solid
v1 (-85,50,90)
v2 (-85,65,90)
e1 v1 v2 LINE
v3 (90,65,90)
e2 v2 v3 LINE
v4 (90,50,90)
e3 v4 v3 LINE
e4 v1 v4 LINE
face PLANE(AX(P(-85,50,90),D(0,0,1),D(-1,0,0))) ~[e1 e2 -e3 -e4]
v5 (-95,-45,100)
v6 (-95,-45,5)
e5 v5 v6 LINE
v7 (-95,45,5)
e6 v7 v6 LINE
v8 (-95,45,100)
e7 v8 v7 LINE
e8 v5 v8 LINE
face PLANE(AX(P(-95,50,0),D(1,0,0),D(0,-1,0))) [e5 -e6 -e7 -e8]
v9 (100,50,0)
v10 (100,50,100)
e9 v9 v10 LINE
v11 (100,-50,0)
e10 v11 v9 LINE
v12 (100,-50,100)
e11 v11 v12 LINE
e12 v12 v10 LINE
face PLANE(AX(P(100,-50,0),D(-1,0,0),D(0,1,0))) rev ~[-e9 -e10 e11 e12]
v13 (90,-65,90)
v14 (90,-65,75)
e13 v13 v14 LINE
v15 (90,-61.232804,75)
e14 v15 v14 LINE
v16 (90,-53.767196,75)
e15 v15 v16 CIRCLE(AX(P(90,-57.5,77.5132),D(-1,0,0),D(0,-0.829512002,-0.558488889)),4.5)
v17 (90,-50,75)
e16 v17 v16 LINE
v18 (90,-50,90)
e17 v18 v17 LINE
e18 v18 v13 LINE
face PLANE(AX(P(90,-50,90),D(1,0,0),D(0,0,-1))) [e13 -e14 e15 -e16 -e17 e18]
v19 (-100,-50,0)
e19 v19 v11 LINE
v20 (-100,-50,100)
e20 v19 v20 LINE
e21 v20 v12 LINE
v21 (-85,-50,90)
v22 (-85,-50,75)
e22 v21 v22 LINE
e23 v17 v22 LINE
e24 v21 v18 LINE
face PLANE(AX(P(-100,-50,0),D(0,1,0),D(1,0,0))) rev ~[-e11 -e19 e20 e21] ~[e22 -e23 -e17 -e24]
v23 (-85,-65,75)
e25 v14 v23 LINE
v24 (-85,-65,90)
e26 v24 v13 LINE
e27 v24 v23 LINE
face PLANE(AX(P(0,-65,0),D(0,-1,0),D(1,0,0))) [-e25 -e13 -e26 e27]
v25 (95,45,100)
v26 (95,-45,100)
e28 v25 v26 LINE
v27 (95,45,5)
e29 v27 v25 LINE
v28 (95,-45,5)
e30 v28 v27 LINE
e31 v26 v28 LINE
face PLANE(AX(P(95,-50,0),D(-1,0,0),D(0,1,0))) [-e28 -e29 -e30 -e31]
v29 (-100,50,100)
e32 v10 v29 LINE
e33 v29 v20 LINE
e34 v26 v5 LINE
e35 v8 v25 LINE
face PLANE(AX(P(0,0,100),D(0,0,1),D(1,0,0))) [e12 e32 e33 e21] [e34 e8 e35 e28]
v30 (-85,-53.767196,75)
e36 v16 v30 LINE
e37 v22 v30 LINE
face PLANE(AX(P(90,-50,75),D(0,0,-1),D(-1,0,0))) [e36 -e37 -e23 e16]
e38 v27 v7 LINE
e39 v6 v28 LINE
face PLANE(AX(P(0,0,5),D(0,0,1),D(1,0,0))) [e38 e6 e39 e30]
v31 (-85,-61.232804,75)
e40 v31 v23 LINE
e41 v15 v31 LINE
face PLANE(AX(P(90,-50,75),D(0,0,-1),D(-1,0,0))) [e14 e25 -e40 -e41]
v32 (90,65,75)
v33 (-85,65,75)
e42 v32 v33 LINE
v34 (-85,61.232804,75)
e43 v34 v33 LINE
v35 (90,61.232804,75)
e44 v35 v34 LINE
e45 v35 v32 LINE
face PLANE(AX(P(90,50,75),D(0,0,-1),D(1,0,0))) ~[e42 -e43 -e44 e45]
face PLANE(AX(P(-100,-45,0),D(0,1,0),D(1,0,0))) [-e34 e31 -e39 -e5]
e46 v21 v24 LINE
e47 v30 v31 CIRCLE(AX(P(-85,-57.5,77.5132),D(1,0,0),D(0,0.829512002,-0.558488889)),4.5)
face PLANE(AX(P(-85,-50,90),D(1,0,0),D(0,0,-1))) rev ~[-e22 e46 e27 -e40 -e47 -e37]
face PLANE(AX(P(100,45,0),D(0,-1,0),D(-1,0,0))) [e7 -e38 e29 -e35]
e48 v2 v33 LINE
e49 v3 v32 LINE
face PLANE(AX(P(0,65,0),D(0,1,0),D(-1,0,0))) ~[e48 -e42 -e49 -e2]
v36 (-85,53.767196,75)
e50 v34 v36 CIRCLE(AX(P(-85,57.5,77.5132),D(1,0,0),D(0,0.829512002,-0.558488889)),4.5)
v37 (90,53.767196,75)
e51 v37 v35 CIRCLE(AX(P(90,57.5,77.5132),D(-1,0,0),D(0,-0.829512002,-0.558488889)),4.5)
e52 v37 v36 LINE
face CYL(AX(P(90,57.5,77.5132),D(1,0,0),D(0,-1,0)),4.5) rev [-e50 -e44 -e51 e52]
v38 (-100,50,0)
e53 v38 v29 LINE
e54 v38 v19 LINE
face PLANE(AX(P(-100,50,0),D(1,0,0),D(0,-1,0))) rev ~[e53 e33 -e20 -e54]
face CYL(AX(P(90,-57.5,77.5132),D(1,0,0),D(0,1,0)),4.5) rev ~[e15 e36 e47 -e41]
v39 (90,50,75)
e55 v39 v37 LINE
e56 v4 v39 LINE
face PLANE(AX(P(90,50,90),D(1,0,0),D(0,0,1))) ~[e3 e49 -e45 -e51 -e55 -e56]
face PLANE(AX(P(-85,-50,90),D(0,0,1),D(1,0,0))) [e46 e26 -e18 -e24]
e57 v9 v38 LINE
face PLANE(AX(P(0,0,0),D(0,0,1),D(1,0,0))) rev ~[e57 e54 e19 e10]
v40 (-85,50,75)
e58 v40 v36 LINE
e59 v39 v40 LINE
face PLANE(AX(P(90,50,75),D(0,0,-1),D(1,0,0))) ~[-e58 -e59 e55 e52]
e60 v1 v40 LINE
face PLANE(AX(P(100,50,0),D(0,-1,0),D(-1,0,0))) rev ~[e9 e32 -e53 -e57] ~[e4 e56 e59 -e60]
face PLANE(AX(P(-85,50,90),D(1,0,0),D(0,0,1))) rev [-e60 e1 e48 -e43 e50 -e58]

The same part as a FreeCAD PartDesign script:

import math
import FreeCAD as App
import Part
import Sketcher


def faces_at(feature, points):
    """Names of the faces that lie closest to the given points."""
    faces = feature.Shape.Faces
    near = lambda p: min(range(len(faces)), key=lambda i: faces[i].distToShape(Part.Vertex(*p))[0])
    return sorted({f"Face{near(p) + 1}" for p in points})

doc = App.newDocument("Part")
body = doc.addObject("PartDesign::Body", "Body")

# Sketch on XY plane
sketch1 = body.newObject("Sketcher::SketchObject", "Sketch")
sketch1.AttachmentSupport = (doc.getObject("XY_Plane"), [""])
sketch1.MapMode = "FlatFace"
sketch1.addGeometry([
    Part.LineSegment(App.Vector(100, -50, 0), App.Vector(100, 50, 0)),
    Part.LineSegment(App.Vector(100, 50, 0), App.Vector(-100, 50, 0)),
    Part.LineSegment(App.Vector(-100, 50, 0), App.Vector(-100, -50, 0)),
    Part.LineSegment(App.Vector(-100, -50, 0), App.Vector(100, -50, 0)),
], False)
sketch1.addConstraint([
    Sketcher.Constraint("Coincident", 0, 2, 1, 1),
    Sketcher.Constraint("Coincident", 1, 2, 2, 1),
    Sketcher.Constraint("Coincident", 2, 2, 3, 1),
    Sketcher.Constraint("Coincident", 3, 2, 0, 1),
    Sketcher.Constraint("Vertical", 0),
    Sketcher.Constraint("Horizontal", 1),
    Sketcher.Constraint("Vertical", 2),
    Sketcher.Constraint("Horizontal", 3),
    Sketcher.Constraint("Symmetric", 0, 2, 2, 2, -1, 1),
    Sketcher.Constraint("DistanceX", 1, 2, 1, 1, 200.0),
    Sketcher.Constraint("DistanceY", 0, 1, 0, 2, 100.0),
])
pad1 = body.newObject("PartDesign::Pad", "Pad")
pad1.Profile = sketch1
pad1.Length = 100
doc.recompute()

thickness = body.newObject("PartDesign::Thickness", "Thickness")
thickness.Base = (pad1, faces_at(pad1, [(-33.333, 16.667, 100)]))
thickness.Value = 5
thickness.Reversed = True
thickness.Join = "Intersection"

# Sketch on XZ plane
sketch2 = body.newObject("Sketcher::SketchObject", "Sketch001")
sketch2.AttachmentSupport = (doc.getObject("XZ_Plane"), [""])
sketch2.MapMode = "FlatFace"
sketch2.AttachmentOffset = App.Placement(App.Vector(0, 0, 50), App.Rotation())
sketch2.addGeometry([
    Part.LineSegment(App.Vector(90, 90, 0), App.Vector(-85, 90, 0)),
    Part.LineSegment(App.Vector(-85, 90, 0), App.Vector(-85, 75, 0)),
    Part.LineSegment(App.Vector(-85, 75, 0), App.Vector(90, 75, 0)),
    Part.LineSegment(App.Vector(90, 75, 0), App.Vector(90, 90, 0)),
], False)
sketch2.addConstraint([
    Sketcher.Constraint("Coincident", 0, 2, 1, 1),
    Sketcher.Constraint("Coincident", 1, 2, 2, 1),
    Sketcher.Constraint("Coincident", 2, 2, 3, 1),
    Sketcher.Constraint("Coincident", 3, 2, 0, 1),
    Sketcher.Constraint("Horizontal", 0),
    Sketcher.Constraint("Vertical", 1),
    Sketcher.Constraint("Horizontal", 2),
    Sketcher.Constraint("Vertical", 3),
    Sketcher.Constraint("DistanceX", 0, 2, 0, 1, 175.0),
    Sketcher.Constraint("DistanceY", 1, 2, 1, 1, 15.0),
    Sketcher.Constraint("DistanceX", 0, 2, -1, 1, 85.0),
    Sketcher.Constraint("DistanceY", -1, 1, 0, 2, 90.0),
])
pad2 = body.newObject("PartDesign::Pad", "Pad001")
pad2.Profile = sketch2
pad2.Length = 15

# Sketch on YZ plane
sketch3 = body.newObject("Sketcher::SketchObject", "Sketch002")
sketch3.AttachmentSupport = (doc.getObject("YZ_Plane"), [""])
sketch3.MapMode = "FlatFace"
sketch3.AttachmentOffset = App.Placement(App.Vector(0, 0, 90), App.Rotation())
sketch3.addGeometry([
    Part.LineSegment(App.Vector(-61.232804, 75, 0), App.Vector(-53.767196, 75, 0)),
    Part.ArcOfCircle(Part.Circle(App.Vector(-57.5, 77.5132, 0), App.Vector(0, 0, 1), 4.5), math.radians(-33.951359), math.radians(213.951359)),
], False)
sketch3.addConstraint([
    Sketcher.Constraint("Coincident", 0, 1, 1, 2),
    Sketcher.Constraint("Coincident", 1, 1, 0, 2),
    Sketcher.Constraint("Horizontal", 0),
    Sketcher.Constraint("Radius", 1, 4.5),
    Sketcher.Constraint("DistanceY", -1, 1, 0, 1, 75.0),
    Sketcher.Constraint("DistanceX", 1, 3, -1, 1, 57.5),
    Sketcher.Constraint("DistanceX", 0, 1, 0, 2, 7.4656),
])
pocket1 = body.newObject("PartDesign::Pocket", "Pocket")
pocket1.Profile = sketch3
pocket1.Length = 180
doc.recompute()

mirrored = body.newObject("PartDesign::Mirrored", "Mirrored")
mirrored.Originals = [pad2, pocket1]
mirrored.MirrorPlane = (doc.getObject("XZ_Plane"), [""])
body.Tip = mirrored

doc.recompute()
